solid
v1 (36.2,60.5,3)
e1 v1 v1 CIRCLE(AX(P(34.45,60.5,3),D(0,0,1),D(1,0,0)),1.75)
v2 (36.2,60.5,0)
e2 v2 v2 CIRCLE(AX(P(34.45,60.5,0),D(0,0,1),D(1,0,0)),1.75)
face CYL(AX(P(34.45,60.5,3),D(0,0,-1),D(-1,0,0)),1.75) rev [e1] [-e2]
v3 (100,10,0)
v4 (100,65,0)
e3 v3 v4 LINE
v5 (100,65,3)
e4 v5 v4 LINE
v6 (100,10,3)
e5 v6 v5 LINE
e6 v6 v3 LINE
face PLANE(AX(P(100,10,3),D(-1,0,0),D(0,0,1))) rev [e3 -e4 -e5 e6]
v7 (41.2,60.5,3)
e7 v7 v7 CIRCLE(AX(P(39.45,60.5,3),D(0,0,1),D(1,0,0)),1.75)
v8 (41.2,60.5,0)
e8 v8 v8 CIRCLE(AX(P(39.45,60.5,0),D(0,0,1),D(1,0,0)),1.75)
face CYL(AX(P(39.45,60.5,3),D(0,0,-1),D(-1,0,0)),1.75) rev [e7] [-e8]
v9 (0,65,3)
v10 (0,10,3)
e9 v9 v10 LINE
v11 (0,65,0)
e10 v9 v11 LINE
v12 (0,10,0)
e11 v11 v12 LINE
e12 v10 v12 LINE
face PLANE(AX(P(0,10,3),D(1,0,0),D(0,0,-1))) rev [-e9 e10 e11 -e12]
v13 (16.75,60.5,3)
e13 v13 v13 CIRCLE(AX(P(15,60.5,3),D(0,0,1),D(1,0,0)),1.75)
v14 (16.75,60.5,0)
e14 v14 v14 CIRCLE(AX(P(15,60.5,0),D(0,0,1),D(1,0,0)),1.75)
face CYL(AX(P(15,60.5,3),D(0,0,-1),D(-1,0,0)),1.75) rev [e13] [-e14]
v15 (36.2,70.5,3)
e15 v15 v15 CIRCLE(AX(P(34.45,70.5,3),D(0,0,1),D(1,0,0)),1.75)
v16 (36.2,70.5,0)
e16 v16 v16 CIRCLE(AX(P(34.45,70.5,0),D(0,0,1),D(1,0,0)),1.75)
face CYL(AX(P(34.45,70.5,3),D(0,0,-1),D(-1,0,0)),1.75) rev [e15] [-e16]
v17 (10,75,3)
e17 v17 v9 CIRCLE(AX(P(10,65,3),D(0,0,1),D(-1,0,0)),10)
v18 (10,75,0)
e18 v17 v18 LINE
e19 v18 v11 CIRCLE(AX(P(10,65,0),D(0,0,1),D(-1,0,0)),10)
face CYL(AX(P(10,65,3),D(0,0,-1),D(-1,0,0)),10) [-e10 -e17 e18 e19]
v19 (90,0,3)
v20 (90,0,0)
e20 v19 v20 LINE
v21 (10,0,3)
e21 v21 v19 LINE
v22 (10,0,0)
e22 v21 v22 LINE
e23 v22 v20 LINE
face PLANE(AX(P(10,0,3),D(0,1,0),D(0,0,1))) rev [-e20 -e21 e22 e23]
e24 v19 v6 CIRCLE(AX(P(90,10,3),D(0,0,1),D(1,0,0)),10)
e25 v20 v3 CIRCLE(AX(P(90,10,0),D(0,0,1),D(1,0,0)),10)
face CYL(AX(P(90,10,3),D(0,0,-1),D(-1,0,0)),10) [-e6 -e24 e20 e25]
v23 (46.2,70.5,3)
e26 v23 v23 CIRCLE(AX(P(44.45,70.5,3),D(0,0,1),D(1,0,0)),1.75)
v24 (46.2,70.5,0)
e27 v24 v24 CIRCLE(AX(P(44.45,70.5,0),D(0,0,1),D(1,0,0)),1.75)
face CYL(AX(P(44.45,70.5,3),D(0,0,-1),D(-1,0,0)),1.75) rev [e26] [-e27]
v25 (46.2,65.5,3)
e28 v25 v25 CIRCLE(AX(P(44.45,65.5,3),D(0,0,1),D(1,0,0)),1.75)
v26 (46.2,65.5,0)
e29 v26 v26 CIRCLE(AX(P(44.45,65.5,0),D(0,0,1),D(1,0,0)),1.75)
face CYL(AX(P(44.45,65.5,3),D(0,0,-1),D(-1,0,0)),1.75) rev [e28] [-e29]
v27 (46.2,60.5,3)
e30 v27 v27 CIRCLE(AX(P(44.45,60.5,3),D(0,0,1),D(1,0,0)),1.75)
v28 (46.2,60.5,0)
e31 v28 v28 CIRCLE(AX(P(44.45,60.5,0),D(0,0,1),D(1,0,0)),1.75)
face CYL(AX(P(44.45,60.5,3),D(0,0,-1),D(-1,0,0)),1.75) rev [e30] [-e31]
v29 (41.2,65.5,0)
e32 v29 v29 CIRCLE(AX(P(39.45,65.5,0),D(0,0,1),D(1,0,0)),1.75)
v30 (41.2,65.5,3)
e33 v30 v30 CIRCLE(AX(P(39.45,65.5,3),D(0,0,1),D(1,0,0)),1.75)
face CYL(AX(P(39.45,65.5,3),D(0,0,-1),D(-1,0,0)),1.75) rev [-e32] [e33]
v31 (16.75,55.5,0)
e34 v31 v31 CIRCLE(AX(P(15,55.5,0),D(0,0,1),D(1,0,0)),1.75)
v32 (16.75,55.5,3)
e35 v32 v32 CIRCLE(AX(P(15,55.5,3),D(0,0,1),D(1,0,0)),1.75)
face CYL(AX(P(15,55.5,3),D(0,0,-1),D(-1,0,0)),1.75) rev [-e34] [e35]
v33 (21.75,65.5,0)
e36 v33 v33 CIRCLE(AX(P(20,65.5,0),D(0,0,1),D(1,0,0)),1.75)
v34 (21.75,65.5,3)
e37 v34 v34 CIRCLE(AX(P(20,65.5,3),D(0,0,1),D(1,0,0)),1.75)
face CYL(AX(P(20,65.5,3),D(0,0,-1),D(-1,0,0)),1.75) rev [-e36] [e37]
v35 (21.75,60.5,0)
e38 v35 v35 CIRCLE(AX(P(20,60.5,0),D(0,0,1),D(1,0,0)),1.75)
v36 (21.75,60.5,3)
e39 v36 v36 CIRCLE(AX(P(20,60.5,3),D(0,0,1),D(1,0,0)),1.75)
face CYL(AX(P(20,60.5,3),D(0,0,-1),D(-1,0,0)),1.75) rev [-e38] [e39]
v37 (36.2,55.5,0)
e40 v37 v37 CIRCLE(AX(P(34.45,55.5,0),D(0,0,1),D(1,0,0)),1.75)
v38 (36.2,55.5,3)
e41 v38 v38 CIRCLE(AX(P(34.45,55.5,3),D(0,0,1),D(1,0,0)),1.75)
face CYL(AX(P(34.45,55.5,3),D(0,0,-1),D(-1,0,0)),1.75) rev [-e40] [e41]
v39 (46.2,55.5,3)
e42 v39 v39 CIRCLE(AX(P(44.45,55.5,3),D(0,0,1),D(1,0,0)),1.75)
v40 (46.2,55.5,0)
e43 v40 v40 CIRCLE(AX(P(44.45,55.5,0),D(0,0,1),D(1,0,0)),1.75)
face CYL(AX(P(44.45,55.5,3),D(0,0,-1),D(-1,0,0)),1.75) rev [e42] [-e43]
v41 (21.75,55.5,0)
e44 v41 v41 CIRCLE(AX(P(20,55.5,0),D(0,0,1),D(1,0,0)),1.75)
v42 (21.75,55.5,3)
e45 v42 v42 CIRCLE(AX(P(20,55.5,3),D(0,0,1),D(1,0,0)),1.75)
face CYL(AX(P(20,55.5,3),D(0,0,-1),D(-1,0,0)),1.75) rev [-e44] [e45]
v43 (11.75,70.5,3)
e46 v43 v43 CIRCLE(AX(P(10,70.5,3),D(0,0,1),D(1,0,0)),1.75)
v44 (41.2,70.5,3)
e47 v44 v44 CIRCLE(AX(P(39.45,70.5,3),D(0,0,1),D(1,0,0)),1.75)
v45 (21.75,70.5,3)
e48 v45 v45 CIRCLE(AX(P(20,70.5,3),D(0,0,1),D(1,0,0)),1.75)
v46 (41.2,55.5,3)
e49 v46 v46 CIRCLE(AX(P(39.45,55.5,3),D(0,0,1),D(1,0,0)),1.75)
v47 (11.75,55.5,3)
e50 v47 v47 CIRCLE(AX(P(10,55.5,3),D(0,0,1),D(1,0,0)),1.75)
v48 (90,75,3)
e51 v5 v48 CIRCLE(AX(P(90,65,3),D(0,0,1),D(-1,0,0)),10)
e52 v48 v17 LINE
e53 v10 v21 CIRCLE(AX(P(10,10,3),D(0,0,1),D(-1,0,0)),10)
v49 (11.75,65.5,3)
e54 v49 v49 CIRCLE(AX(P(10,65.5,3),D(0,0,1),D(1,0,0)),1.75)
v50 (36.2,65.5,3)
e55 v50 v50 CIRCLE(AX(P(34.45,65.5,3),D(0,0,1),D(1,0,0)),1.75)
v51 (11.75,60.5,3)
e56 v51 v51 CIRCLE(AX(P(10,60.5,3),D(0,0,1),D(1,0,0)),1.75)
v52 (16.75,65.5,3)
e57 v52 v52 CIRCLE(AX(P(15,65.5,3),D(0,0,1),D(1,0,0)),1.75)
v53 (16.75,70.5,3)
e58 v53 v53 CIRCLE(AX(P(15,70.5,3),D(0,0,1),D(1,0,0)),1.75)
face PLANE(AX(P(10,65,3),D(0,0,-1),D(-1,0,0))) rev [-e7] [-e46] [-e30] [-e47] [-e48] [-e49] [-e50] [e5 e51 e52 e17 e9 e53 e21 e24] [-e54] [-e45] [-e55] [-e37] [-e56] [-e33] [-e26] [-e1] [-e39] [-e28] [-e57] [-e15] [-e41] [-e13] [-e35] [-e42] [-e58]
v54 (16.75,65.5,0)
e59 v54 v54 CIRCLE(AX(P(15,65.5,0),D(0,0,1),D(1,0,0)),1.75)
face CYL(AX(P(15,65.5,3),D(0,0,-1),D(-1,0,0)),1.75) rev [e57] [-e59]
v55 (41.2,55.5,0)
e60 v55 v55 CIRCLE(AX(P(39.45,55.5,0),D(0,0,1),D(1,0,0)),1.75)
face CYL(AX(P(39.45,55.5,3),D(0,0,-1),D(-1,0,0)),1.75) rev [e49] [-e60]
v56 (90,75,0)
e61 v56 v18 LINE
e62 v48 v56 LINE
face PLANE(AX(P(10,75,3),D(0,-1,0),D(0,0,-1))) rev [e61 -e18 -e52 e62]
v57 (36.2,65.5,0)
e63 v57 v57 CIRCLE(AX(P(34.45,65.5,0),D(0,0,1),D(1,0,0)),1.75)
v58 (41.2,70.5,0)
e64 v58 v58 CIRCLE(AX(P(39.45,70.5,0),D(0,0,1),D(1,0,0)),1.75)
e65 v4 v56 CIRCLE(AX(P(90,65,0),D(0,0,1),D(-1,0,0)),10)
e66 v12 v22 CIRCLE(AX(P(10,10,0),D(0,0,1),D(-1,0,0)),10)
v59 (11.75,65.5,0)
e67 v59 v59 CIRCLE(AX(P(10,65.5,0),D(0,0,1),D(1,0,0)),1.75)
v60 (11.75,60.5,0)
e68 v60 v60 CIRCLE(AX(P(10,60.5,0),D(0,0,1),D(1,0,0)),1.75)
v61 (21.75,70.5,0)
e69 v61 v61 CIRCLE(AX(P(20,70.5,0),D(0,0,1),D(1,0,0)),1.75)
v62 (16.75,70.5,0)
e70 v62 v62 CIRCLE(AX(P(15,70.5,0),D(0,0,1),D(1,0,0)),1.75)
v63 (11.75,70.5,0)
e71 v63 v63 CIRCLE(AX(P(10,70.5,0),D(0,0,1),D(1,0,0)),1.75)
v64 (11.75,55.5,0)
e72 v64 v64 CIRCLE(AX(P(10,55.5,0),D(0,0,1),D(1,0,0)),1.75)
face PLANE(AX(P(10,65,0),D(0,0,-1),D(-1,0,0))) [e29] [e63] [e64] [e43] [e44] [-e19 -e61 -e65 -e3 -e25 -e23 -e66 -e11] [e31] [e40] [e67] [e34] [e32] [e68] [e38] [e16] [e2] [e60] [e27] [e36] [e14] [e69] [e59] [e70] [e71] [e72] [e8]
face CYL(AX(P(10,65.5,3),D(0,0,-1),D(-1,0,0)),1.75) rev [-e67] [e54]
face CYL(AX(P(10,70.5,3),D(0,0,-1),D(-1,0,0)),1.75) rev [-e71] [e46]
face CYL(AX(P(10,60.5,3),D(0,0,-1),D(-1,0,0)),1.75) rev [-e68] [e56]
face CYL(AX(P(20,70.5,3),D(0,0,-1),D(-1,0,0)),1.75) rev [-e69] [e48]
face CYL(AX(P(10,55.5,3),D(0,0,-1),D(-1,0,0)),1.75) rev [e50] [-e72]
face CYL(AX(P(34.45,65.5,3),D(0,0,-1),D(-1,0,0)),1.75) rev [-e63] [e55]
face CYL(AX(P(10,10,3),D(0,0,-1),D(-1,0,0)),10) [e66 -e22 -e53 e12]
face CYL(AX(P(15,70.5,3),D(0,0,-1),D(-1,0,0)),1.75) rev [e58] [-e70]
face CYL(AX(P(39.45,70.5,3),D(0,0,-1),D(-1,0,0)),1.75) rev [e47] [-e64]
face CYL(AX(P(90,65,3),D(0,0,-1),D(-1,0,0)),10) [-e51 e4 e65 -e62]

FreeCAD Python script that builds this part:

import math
import FreeCAD as App
import Part
import Sketcher
from FreeCAD import Vector
Q = App.Units.Quantity

doc = App.newDocument("Part")
body = doc.addObject("PartDesign::Body", "Body")

sketch1 = body.newObject("Sketcher::SketchObject", "Sketch")
sketch1.AttachmentSupport = (doc.getObject("XY_Plane"), [""])
sketch1.MapMode = "FlatFace"
sketch1.addGeometry([
    Part.LineSegment(Vector(10, 0, 0), Vector(90, 0, 0)),
    Part.ArcOfCircle(Part.Circle(Vector(90, 10, 0), Vector(0, 0, 1), 10), math.radians(-90), math.radians(0)),
    Part.LineSegment(Vector(100, 10, 0), Vector(100, 65, 0)),
    Part.ArcOfCircle(Part.Circle(Vector(90, 65, 0), Vector(0, 0, 1), 10), math.radians(0), math.radians(90)),
    Part.LineSegment(Vector(90, 75, 0), Vector(10, 75, 0)),
    Part.ArcOfCircle(Part.Circle(Vector(10, 65, 0), Vector(0, 0, 1), 10), math.radians(90), math.radians(180)),
    Part.LineSegment(Vector(0, 65, 0), Vector(0, 10, 0)),
    Part.ArcOfCircle(Part.Circle(Vector(10, 10, 0), Vector(0, 0, 1), 10), math.radians(180), math.radians(270)),
    Part.Circle(Vector(10, 55.5, 0), Vector(0, 0, 1), 1.75),
    Part.Circle(Vector(15, 55.5, 0), Vector(0, 0, 1), 1.75),
    Part.Circle(Vector(20, 55.5, 0), Vector(0, 0, 1), 1.75),
    Part.Circle(Vector(10, 60.5, 0), Vector(0, 0, 1), 1.75),
    Part.Circle(Vector(15, 60.5, 0), Vector(0, 0, 1), 1.75),
    Part.Circle(Vector(20, 60.5, 0), Vector(0, 0, 1), 1.75),
    Part.Circle(Vector(34.45, 55.5, 0), Vector(0, 0, 1), 1.75),
    Part.Circle(Vector(39.45, 55.5, 0), Vector(0, 0, 1), 1.75),
    Part.Circle(Vector(44.45, 55.5, 0), Vector(0, 0, 1), 1.75),
    Part.Circle(Vector(34.45, 60.5, 0), Vector(0, 0, 1), 1.75),
    Part.Circle(Vector(39.45, 60.5, 0), Vector(0, 0, 1), 1.75),
    Part.Circle(Vector(44.45, 60.5, 0), Vector(0, 0, 1), 1.75),
    Part.Circle(Vector(10, 65.5, 0), Vector(0, 0, 1), 1.75),
    Part.Circle(Vector(15, 65.5, 0), Vector(0, 0, 1), 1.75),
    Part.Circle(Vector(20, 65.5, 0), Vector(0, 0, 1), 1.75),
    Part.Circle(Vector(10, 70.5, 0), Vector(0, 0, 1), 1.75),
    Part.Circle(Vector(15, 70.5, 0), Vector(0, 0, 1), 1.75),
    Part.Circle(Vector(20, 70.5, 0), Vector(0, 0, 1), 1.75),
    Part.Circle(Vector(34.45, 65.5, 0), Vector(0, 0, 1), 1.75),
    Part.Circle(Vector(39.45, 65.5, 0), Vector(0, 0, 1), 1.75),
    Part.Circle(Vector(44.45, 65.5, 0), Vector(0, 0, 1), 1.75),
    Part.Circle(Vector(34.45, 70.5, 0), Vector(0, 0, 1), 1.75),
    Part.Circle(Vector(39.45, 70.5, 0), Vector(0, 0, 1), 1.75),
    Part.Circle(Vector(44.45, 70.5, 0), Vector(0, 0, 1), 1.75),
], False)
sketch1.addConstraint([
    Sketcher.Constraint("Tangent", 0, 2, 1, 1),
    Sketcher.Constraint("Tangent", 1, 2, 2, 1),
    Sketcher.Constraint("Tangent", 2, 2, 3, 1),
    Sketcher.Constraint("Tangent", 3, 2, 4, 1),
    Sketcher.Constraint("Tangent", 4, 2, 5, 1),
    Sketcher.Constraint("Tangent", 5, 2, 6, 1),
    Sketcher.Constraint("Tangent", 6, 2, 7, 1),
    Sketcher.Constraint("Tangent", 7, 2, 0, 1),
    Sketcher.Constraint("Horizontal", 0),
    Sketcher.Constraint("Vertical", 2),
    Sketcher.Constraint("Horizontal", 4),
    Sketcher.Constraint("Vertical", 6),
    Sketcher.Constraint("Equal", 1, 3),
    Sketcher.Constraint("Equal", 3, 5),
    Sketcher.Constraint("Equal", 5, 7),
    Sketcher.Constraint("Equal", 8, 9),
    Sketcher.Constraint("Equal", 9, 10),
    Sketcher.Constraint("Equal", 10, 11),
    Sketcher.Constraint("Equal", 11, 12),
    Sketcher.Constraint("Equal", 12, 13),
    Sketcher.Constraint("Equal", 13, 14),
    Sketcher.Constraint("Equal", 14, 15),
    Sketcher.Constraint("Equal", 15, 16),
    Sketcher.Constraint("Equal", 16, 17),
    Sketcher.Constraint("Equal", 17, 18),
    Sketcher.Constraint("Equal", 18, 19),
    Sketcher.Constraint("Equal", 19, 20),
    Sketcher.Constraint("Equal", 20, 21),
    Sketcher.Constraint("Equal", 21, 22),
    Sketcher.Constraint("Equal", 22, 23),
    Sketcher.Constraint("Equal", 23, 24),
    Sketcher.Constraint("Equal", 24, 25),
    Sketcher.Constraint("Equal", 25, 26),
    Sketcher.Constraint("Equal", 26, 27),
    Sketcher.Constraint("Equal", 27, 28),
    Sketcher.Constraint("Equal", 28, 29),
    Sketcher.Constraint("Equal", 29, 30),
    Sketcher.Constraint("Equal", 30, 31),
    Sketcher.Constraint("PointOnObject", 0, 2, -1),
    Sketcher.Constraint("PointOnObject", 5, 2, -2),
    Sketcher.Constraint("Horizontal", 8, 3, 9, 3),
    Sketcher.Constraint("Horizontal", 9, 3, 10, 3),
    Sketcher.Constraint("Horizontal", 11, 3, 12, 3),
    Sketcher.Constraint("Horizontal", 12, 3, 13, 3),
    Sketcher.Constraint("Horizontal", 10, 3, 14, 3),
    Sketcher.Constraint("Horizontal", 14, 3, 15, 3),
    Sketcher.Constraint("Horizontal", 15, 3, 16, 3),
    Sketcher.Constraint("Horizontal", 13, 3, 17, 3),
    Sketcher.Constraint("Horizontal", 17, 3, 18, 3),
    Sketcher.Constraint("Horizontal", 18, 3, 19, 3),
    Sketcher.Constraint("Horizontal", 20, 3, 21, 3),
    Sketcher.Constraint("Horizontal", 21, 3, 22, 3),
    Sketcher.Constraint("Horizontal", 23, 3, 24, 3),
    Sketcher.Constraint("Horizontal", 24, 3, 25, 3),
    Sketcher.Constraint("Horizontal", 22, 3, 26, 3),
    Sketcher.Constraint("Horizontal", 26, 3, 27, 3),
    Sketcher.Constraint("Horizontal", 27, 3, 28, 3),
    Sketcher.Constraint("Horizontal", 25, 3, 29, 3),
    Sketcher.Constraint("Horizontal", 29, 3, 30, 3),
    Sketcher.Constraint("Horizontal", 30, 3, 31, 3),
    Sketcher.Constraint("Vertical", 7, 3, 8, 3),
    Sketcher.Constraint("Vertical", 8, 3, 11, 3),
    Sketcher.Constraint("Vertical", 9, 3, 12, 3),
    Sketcher.Constraint("Vertical", 10, 3, 13, 3),
    Sketcher.Constraint("Vertical", 14, 3, 17, 3),
    Sketcher.Constraint("Vertical", 15, 3, 18, 3),
    Sketcher.Constraint("Vertical", 16, 3, 19, 3),
    Sketcher.Constraint("Vertical", 11, 3, 20, 3),
    Sketcher.Constraint("Vertical", 12, 3, 21, 3),
    Sketcher.Constraint("Vertical", 13, 3, 22, 3),
    Sketcher.Constraint("Vertical", 20, 3, 23, 3),
    Sketcher.Constraint("Vertical", 21, 3, 24, 3),
    Sketcher.Constraint("Vertical", 22, 3, 25, 3),
    Sketcher.Constraint("Vertical", 17, 3, 26, 3),
    Sketcher.Constraint("Vertical", 18, 3, 27, 3),
    Sketcher.Constraint("Vertical", 19, 3, 28, 3),
    Sketcher.Constraint("Vertical", 26, 3, 29, 3),
    Sketcher.Constraint("Vertical", 27, 3, 30, 3),
    Sketcher.Constraint("Vertical", 28, 3, 31, 3),
    Sketcher.Constraint("Radius", 1, Q("10 mm")),
    Sketcher.Constraint("Diameter", 8, Q("3.5 mm")),
    Sketcher.Constraint("DistanceX", 0, 1, 0, 2, Q("80 mm")),
    Sketcher.Constraint("DistanceY", 2, 1, 2, 2, Q("55 mm")),
    Sketcher.Constraint("DistanceX", -1, 1, 9, 3, Q("15 mm")),
    Sketcher.Constraint("DistanceX", -1, 1, 10, 3, Q("20 mm")),
    Sketcher.Constraint("DistanceY", 8, 3, 11, 3, Q("5 mm")),
    Sketcher.Constraint("DistanceX", 14, 3, 15, 3, Q("5 mm")),
    Sketcher.Constraint("DistanceX", 15, 3, 16, 3, Q("5 mm")),
    Sketcher.Constraint("DistanceY", 11, 3, 20, 3, Q("5 mm")),
    Sketcher.Constraint("DistanceY", 20, 3, 23, 3, Q("5 mm")),
    Sketcher.Constraint("DistanceY", -1, 1, 8, 3, Q("55.5 mm")),
    Sketcher.Constraint("DistanceX", -1, 1, 14, 3, Q("34.45 mm")),
])
pad1 = body.newObject("PartDesign::Pad", "Pad")
pad1.Profile = sketch1
pad1.Length = 3

doc.recompute()
